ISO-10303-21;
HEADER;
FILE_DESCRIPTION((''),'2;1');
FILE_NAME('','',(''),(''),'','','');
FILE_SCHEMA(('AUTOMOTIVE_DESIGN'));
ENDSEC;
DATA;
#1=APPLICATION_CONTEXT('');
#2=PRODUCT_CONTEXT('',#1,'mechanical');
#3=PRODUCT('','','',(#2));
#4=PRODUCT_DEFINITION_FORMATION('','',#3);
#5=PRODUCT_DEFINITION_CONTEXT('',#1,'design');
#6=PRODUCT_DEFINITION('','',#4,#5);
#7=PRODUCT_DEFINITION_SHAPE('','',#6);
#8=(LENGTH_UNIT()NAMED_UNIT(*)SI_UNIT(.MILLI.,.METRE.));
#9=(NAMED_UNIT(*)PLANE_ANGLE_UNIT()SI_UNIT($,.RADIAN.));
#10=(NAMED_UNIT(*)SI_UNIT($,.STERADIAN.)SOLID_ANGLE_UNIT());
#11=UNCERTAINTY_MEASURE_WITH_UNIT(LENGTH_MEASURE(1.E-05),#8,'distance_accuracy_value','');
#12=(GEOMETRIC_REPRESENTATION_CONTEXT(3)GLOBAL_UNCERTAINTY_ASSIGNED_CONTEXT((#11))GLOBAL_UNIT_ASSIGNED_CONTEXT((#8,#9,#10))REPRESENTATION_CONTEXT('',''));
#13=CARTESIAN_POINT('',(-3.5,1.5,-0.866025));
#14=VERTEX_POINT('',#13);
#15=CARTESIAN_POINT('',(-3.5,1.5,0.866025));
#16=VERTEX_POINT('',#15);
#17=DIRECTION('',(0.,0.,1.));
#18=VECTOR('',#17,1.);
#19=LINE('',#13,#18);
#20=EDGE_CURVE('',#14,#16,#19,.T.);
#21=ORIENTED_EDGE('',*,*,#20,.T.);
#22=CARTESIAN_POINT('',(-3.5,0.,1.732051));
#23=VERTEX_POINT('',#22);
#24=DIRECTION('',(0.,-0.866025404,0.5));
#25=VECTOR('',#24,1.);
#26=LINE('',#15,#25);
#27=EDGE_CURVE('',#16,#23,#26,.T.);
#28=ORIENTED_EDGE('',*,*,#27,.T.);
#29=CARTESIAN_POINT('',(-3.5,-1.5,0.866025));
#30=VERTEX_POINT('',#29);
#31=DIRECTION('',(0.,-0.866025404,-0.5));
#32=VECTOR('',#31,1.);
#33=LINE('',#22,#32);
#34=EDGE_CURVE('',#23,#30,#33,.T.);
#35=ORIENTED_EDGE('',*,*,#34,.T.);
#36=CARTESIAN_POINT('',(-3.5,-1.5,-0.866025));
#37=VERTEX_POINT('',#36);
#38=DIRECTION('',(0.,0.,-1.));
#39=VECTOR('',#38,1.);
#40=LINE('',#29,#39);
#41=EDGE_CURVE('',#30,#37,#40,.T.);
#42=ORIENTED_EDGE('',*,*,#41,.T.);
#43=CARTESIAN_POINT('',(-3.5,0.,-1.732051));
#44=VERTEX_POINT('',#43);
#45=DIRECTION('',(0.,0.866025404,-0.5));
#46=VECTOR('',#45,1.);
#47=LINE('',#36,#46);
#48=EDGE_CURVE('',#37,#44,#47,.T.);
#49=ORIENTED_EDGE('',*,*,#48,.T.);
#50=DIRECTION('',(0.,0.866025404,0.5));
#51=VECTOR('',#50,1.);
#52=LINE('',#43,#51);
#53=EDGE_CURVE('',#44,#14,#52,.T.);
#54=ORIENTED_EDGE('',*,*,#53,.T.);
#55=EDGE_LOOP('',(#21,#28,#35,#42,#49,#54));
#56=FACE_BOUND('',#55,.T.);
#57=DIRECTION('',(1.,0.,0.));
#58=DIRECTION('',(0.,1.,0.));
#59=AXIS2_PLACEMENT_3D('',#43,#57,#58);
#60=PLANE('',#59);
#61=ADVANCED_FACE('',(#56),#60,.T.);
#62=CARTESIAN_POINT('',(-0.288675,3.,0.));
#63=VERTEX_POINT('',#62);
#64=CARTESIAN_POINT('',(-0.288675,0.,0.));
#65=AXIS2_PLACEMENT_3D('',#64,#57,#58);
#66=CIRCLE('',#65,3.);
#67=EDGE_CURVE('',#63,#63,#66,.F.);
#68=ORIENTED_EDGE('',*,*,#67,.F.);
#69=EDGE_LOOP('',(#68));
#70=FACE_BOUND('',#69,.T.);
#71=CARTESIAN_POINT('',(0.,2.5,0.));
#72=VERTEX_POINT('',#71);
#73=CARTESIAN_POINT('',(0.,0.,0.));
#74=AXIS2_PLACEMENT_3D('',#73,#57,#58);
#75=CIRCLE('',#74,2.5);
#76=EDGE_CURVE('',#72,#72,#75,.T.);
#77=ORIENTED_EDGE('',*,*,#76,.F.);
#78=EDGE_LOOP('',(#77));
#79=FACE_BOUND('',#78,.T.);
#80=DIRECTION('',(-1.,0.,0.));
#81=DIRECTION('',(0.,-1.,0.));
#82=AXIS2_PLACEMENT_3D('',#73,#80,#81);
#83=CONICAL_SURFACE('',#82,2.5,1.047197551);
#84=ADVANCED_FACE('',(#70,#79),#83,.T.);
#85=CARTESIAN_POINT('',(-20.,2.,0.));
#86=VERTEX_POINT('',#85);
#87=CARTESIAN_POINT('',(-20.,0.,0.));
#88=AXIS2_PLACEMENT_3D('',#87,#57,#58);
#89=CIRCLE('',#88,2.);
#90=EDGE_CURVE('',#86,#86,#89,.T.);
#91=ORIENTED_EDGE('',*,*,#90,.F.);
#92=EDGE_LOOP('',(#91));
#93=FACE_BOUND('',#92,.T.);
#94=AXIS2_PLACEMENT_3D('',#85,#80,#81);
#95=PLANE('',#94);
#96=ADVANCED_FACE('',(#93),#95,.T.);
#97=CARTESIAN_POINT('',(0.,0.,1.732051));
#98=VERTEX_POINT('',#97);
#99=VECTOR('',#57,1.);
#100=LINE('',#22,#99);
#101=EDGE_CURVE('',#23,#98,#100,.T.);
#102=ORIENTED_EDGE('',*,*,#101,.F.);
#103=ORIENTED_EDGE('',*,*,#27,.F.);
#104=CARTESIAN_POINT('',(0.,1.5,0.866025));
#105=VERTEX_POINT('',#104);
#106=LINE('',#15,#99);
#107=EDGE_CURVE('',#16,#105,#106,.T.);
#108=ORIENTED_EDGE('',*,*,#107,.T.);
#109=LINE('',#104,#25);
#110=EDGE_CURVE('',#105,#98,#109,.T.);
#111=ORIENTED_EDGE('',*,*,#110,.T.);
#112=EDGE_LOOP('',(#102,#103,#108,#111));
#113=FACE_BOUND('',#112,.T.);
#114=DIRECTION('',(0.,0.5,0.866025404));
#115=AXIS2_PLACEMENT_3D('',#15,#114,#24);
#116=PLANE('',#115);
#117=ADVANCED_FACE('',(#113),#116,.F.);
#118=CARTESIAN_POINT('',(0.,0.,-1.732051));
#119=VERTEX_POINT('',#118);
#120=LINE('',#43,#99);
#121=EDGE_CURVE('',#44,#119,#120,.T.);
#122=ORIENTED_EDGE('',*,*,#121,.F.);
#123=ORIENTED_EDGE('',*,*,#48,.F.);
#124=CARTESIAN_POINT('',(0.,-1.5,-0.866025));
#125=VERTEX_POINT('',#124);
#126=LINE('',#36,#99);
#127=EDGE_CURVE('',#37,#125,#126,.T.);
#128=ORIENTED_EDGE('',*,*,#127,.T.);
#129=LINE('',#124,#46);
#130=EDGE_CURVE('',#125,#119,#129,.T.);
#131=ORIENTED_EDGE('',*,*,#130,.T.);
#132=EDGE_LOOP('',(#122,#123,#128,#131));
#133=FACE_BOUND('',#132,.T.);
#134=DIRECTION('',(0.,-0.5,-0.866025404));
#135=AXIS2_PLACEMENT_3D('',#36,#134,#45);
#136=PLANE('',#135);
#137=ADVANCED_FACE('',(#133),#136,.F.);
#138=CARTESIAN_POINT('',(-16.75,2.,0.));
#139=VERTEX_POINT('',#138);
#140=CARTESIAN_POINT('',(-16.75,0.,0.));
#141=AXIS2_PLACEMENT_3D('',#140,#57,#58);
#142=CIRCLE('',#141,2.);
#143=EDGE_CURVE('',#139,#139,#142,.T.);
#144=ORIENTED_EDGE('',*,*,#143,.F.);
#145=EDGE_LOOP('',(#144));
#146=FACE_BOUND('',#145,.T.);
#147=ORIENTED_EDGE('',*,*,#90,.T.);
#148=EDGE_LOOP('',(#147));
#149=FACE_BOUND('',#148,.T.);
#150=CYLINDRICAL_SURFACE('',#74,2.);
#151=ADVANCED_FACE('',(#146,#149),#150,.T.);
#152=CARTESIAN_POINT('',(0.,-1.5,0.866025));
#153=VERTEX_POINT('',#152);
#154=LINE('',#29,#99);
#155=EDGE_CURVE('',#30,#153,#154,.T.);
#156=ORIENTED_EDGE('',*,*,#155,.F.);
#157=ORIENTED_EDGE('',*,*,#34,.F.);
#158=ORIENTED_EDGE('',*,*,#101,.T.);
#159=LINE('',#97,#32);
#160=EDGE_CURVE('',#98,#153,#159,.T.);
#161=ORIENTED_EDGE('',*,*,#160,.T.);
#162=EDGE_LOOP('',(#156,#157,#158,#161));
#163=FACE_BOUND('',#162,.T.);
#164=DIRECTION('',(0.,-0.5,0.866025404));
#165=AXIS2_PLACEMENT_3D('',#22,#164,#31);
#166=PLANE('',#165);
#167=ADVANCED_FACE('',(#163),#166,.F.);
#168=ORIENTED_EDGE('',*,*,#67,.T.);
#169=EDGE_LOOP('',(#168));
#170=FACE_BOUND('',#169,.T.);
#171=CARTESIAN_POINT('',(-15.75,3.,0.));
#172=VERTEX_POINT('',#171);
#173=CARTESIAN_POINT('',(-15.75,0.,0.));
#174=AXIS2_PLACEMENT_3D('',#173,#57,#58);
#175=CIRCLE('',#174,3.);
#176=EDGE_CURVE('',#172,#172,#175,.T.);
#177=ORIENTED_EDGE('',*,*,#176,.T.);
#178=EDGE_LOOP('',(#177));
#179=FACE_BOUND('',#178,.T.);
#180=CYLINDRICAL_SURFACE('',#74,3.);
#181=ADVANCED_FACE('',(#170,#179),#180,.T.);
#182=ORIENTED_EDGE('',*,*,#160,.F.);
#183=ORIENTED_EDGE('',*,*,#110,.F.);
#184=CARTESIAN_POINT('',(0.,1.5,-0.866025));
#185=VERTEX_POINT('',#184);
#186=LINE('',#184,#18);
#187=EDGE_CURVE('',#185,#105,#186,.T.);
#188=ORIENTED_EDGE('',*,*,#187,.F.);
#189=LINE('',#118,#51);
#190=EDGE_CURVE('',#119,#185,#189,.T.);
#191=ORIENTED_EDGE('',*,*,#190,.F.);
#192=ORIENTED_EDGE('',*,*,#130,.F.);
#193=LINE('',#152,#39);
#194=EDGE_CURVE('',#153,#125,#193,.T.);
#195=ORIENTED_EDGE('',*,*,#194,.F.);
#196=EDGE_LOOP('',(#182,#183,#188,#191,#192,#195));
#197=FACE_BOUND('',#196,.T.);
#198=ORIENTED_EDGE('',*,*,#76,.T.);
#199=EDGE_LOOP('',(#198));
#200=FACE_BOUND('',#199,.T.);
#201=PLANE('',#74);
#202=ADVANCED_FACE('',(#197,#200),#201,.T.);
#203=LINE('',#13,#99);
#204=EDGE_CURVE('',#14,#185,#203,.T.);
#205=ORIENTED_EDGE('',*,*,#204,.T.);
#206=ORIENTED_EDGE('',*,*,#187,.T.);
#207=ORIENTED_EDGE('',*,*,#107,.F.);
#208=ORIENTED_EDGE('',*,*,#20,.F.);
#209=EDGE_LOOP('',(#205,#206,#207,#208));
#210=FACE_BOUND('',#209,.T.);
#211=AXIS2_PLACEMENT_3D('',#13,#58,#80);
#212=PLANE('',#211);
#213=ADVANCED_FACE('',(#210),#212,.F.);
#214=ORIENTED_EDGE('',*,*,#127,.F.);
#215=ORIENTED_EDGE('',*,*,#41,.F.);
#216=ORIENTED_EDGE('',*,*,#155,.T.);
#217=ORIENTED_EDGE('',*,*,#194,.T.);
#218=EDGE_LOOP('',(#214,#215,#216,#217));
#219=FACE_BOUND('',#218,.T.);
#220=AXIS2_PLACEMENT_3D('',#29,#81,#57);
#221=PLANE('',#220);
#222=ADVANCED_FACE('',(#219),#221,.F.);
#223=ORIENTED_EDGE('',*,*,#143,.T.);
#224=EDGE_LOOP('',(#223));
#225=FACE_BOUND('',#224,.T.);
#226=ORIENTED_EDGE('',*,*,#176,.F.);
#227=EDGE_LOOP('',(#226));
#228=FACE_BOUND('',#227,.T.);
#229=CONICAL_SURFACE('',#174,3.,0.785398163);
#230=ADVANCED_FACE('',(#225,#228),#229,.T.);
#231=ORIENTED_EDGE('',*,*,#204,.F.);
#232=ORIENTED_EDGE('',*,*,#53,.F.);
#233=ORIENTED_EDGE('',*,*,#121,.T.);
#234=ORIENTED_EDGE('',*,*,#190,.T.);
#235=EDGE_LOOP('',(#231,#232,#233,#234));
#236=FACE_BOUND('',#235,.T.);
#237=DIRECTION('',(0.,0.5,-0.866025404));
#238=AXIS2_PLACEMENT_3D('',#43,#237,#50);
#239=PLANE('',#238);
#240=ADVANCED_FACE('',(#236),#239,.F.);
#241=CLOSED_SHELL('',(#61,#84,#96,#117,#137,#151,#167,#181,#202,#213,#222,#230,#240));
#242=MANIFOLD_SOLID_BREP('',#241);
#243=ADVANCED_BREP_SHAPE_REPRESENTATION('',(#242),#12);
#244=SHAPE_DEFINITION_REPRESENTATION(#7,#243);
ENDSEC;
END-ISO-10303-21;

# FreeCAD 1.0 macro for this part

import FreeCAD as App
import Part
import Sketcher
Q = App.Units.Quantity


def edges_at(feature, points):
    """Names of the edges that pass closest to the given points."""
    edges = feature.Shape.Edges
    near = lambda p: min(range(len(edges)), key=lambda i: edges[i].distToShape(Part.Vertex(*p))[0])
    return sorted({f"Edge{near(p) + 1}" for p in points})

doc = App.newDocument("Part")
body = doc.addObject("PartDesign::Body", "Body")

sketch1 = doc.addObject("Sketcher::SketchObject", "Sketch")
body.addObject(sketch1)
sketch1.AttachmentSupport = (doc.XY_Plane, [""])
sketch1.MapMode = "FlatFace"
sketch1.addGeometry([
    Part.LineSegment(App.Vector(0, 0, 0), App.Vector(0, 3, 0)),
    Part.LineSegment(App.Vector(0, 3, 0), App.Vector(-15.75, 3, 0)),
    Part.LineSegment(App.Vector(-15.75, 3, 0), App.Vector(-16.75, 2, 0)),
    Part.LineSegment(App.Vector(-16.75, 2, 0), App.Vector(-20, 2, 0)),
    Part.LineSegment(App.Vector(-20, 2, 0), App.Vector(-20, 0, 0)),
    Part.LineSegment(App.Vector(-20, 0, 0), App.Vector(0, 0, 0)),
], False)
sketch1.addConstraint([
    Sketcher.Constraint("Coincident", 0, 2, 1, 1),
    Sketcher.Constraint("Coincident", 1, 2, 2, 1),
    Sketcher.Constraint("Coincident", 2, 2, 3, 1),
    Sketcher.Constraint("Coincident", 3, 2, 4, 1),
    Sketcher.Constraint("Coincident", 4, 2, 5, 1),
    Sketcher.Constraint("Coincident", 5, 2, 0, 1),
    Sketcher.Constraint("Vertical", 0),
    Sketcher.Constraint("Horizontal", 1),
    Sketcher.Constraint("Horizontal", 3),
    Sketcher.Constraint("Vertical", 4),
    Sketcher.Constraint("Horizontal", 5),
    Sketcher.Constraint("Coincident", 5, 2, -1, 1),
    Sketcher.Constraint("DistanceX", 5, 1, 5, 2, 20.0),
    Sketcher.Constraint("DistanceY", 0, 1, 0, 2, 3.0),
    Sketcher.Constraint("DistanceY", 4, 2, 4, 1, 2.0),
    Sketcher.Constraint("Angle", 2, Q("-135 deg")),
    Sketcher.Constraint("DistanceX", 1, 2, 1, 1, 15.75),
])
revolution = doc.addObject("PartDesign::Revolution", "Revolution")
body.addObject(revolution)
revolution.Profile = sketch1
revolution.ReferenceAxis = (sketch1, ["H_Axis"])
revolution.Angle = 360

sketch2 = doc.addObject("Sketcher::SketchObject", "Sketch001")
body.addObject(sketch2)
sketch2.AttachmentSupport = (doc.YZ_Plane, [""])
sketch2.MapMode = "FlatFace"
sketch2.addGeometry([
    Part.LineSegment(App.Vector(0, -1.732051, 0), App.Vector(1.5, -0.866025, 0)),
    Part.LineSegment(App.Vector(1.5, -0.866025, 0), App.Vector(1.5, 0.866025, 0)),
    Part.LineSegment(App.Vector(1.5, 0.866025, 0), App.Vector(0, 1.732051, 0)),
    Part.LineSegment(App.Vector(0, 1.732051, 0), App.Vector(-1.5, 0.866025, 0)),
    Part.LineSegment(App.Vector(-1.5, 0.866025, 0), App.Vector(-1.5, -0.866025, 0)),
    Part.LineSegment(App.Vector(-1.5, -0.866025, 0), App.Vector(0, -1.732051, 0)),
], False)
sketch2.addConstraint([
    Sketcher.Constraint("Coincident", 0, 2, 1, 1),
    Sketcher.Constraint("Coincident", 1, 2, 2, 1),
    Sketcher.Constraint("Coincident", 2, 2, 3, 1),
    Sketcher.Constraint("Coincident", 3, 2, 4, 1),
    Sketcher.Constraint("Coincident", 4, 2, 5, 1),
    Sketcher.Constraint("Coincident", 5, 2, 0, 1),
    Sketcher.Constraint("Vertical", 1),
    Sketcher.Constraint("Vertical", 4),
    Sketcher.Constraint("Symmetric", 0, 2, 3, 2, -1, 1),
    Sketcher.Constraint("Symmetric", 2, 2, 5, 2, -1, 1),
    Sketcher.Constraint("PointOnObject", 2, 2, -2),
    Sketcher.Constraint("Parallel", 2, 5),
    Sketcher.Constraint("Horizontal", 1, 2, 3, 2),
    Sketcher.Constraint("Angle", 0, Q("30 deg")),
    Sketcher.Constraint("DistanceX", 3, 2, 1, 2, 3.0),
    Sketcher.Constraint("DistanceY", 1, 1, 1, 2, 1.732051),
])
pocket1 = doc.addObject("PartDesign::Pocket", "Pocket")
body.addObject(pocket1)
pocket1.Profile = sketch2
pocket1.Length = 3.5
doc.recompute()

chamfer = doc.addObject("PartDesign::Chamfer", "Chamfer")
body.addObject(chamfer)
chamfer.Base = (pocket1, edges_at(pocket1, [(0, -3, 0)]))
chamfer.ChamferType = "Two distances"
chamfer.Size = 0.5
chamfer.Size2 = 0.288675

doc.recompute()
